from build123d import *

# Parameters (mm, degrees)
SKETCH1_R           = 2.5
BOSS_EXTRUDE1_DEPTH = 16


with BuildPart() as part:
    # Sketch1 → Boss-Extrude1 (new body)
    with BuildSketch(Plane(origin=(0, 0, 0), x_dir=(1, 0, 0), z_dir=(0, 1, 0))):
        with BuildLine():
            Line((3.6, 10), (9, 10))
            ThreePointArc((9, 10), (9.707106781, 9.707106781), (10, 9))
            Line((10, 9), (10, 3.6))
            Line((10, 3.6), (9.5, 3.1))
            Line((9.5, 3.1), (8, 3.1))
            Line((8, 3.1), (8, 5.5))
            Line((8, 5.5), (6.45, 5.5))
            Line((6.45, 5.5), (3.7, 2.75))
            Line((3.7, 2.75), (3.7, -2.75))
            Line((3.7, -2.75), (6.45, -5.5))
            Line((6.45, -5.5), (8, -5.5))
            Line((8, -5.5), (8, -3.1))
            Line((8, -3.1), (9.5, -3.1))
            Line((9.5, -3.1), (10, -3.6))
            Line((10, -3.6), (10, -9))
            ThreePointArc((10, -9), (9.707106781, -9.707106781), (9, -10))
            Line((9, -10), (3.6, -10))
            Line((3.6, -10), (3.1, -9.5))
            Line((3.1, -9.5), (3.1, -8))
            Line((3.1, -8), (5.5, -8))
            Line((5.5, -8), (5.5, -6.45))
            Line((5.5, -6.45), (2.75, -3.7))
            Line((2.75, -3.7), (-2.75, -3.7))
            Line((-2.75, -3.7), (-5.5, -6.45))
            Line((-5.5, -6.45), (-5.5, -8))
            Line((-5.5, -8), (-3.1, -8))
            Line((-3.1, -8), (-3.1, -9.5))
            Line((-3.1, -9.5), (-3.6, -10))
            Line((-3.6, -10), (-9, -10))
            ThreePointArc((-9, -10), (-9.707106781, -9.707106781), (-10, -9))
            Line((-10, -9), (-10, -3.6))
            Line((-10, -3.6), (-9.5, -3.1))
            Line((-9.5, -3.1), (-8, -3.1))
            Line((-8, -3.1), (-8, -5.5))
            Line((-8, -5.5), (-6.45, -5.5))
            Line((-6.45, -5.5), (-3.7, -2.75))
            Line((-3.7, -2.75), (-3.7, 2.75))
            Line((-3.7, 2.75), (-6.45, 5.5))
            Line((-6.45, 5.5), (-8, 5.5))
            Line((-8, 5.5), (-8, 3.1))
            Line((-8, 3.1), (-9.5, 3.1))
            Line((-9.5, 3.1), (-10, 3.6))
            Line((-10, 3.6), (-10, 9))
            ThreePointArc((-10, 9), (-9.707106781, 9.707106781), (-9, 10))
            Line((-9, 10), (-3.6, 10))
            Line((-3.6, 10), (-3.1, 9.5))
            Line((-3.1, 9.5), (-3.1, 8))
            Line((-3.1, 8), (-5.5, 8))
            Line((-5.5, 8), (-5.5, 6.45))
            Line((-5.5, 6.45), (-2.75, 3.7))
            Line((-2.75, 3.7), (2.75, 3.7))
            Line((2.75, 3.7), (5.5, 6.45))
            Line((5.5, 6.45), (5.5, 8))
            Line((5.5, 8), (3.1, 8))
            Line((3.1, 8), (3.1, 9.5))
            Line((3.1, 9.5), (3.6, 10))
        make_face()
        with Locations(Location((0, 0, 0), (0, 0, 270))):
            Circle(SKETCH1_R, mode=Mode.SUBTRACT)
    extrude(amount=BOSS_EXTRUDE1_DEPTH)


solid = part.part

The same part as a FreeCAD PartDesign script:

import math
import FreeCAD as App
import Part
import Sketcher
from FreeCAD import Vector
Q = App.Units.Quantity

doc = App.newDocument("Part")
body = doc.addObject("PartDesign::Body", "Body")

# Sketch on XZ plane
sketch1 = doc.addObject("Sketcher::SketchObject", "Sketch")
body.addObject(sketch1)
sketch1.AttachmentSupport = (doc.XZ_Plane, [""])
sketch1.MapMode = "FlatFace"
sketch1.addGeometry(Part.LineSegment(Vector(9, -10, 0), Vector(3.6, -10, 0)), False)
sketch1.addGeometry(Part.LineSegment(Vector(3.6, -10, 0), Vector(3.1, -9.5, 0)), False)
sketch1.addGeometry(Part.LineSegment(Vector(3.1, -9.5, 0), Vector(3.1, -8, 0)), False)
sketch1.addGeometry(Part.LineSegment(Vector(3.1, -8, 0), Vector(5.5, -8, 0)), False)
sketch1.addGeometry(Part.LineSegment(Vector(5.5, -8, 0), Vector(5.5, -6.5, 0)), False)
sketch1.addGeometry(Part.LineSegment(Vector(5.5, -6.5, 0), Vector(2.8, -3.7, 0)), False)
sketch1.addGeometry(Part.LineSegment(Vector(2.8, -3.7, 0), Vector(-2.8, -3.7, 0)), False)
sketch1.addGeometry(Part.LineSegment(Vector(-2.8, -3.7, 0), Vector(-5.5, -6.5, 0)), False)
sketch1.addGeometry(Part.LineSegment(Vector(-5.5, -6.5, 0), Vector(-5.5, -8, 0)), False)
sketch1.addGeometry(Part.LineSegment(Vector(-5.5, -8, 0), Vector(-3.1, -8, 0)), False)
sketch1.addGeometry(Part.LineSegment(Vector(-3.1, -8, 0), Vector(-3.1, -9.5, 0)), False)
sketch1.addGeometry(Part.LineSegment(Vector(-3.1, -9.5, 0), Vector(-3.6, -10, 0)), False)
sketch1.addGeometry(Part.LineSegment(Vector(-3.6, -10, 0), Vector(-9, -10, 0)), False)
sketch1.addGeometry(Part.ArcOfCircle(Part.Circle(Vector(-9, -9, 0), Vector(0, 0, 1), 1), math.radians(-180), math.radians(-90)), False)
sketch1.addGeometry(Part.LineSegment(Vector(-10, -9, 0), Vector(-10, -3.6, 0)), False)
sketch1.addGeometry(Part.LineSegment(Vector(-10, -3.6, 0), Vector(-9.5, -3.1, 0)), False)
sketch1.addGeometry(Part.LineSegment(Vector(-9.5, -3.1, 0), Vector(-8, -3.1, 0)), False)
sketch1.addGeometry(Part.LineSegment(Vector(-8, -3.1, 0), Vector(-8, -5.5, 0)), False)
sketch1.addGeometry(Part.LineSegment(Vector(-8, -5.5, 0), Vector(-6.5, -5.5, 0)), False)
sketch1.addGeometry(Part.LineSegment(Vector(-6.5, -5.5, 0), Vector(-3.7, -2.8, 0)), False)
sketch1.addGeometry(Part.LineSegment(Vector(-3.7, -2.8, 0), Vector(-3.7, 2.8, 0)), False)
sketch1.addGeometry(Part.LineSegment(Vector(-3.7, 2.8, 0), Vector(-6.5, 5.5, 0)), False)
sketch1.addGeometry(Part.LineSegment(Vector(-6.5, 5.5, 0), Vector(-8, 5.5, 0)), False)
sketch1.addGeometry(Part.LineSegment(Vector(-8, 5.5, 0), Vector(-8, 3.1, 0)), False)
sketch1.addGeometry(Part.LineSegment(Vector(-8, 3.1, 0), Vector(-9.5, 3.1, 0)), False)
sketch1.addGeometry(Part.LineSegment(Vector(-9.5, 3.1, 0), Vector(-10, 3.6, 0)), False)
sketch1.addGeometry(Part.LineSegment(Vector(-10, 3.6, 0), Vector(-10, 9, 0)), False)
sketch1.addGeometry(Part.ArcOfCircle(Part.Circle(Vector(-9, 9, 0), Vector(0, 0, 1), 1), math.radians(90), math.radians(180)), False)
sketch1.addGeometry(Part.LineSegment(Vector(-9, 10, 0), Vector(-3.6, 10, 0)), False)
sketch1.addGeometry(Part.LineSegment(Vector(-3.6, 10, 0), Vector(-3.1, 9.5, 0)), False)
sketch1.addGeometry(Part.LineSegment(Vector(-3.1, 9.5, 0), Vector(-3.1, 8, 0)), False)
sketch1.addGeometry(Part.LineSegment(Vector(-3.1, 8, 0), Vector(-5.5, 8, 0)), False)
sketch1.addGeometry(Part.LineSegment(Vector(-5.5, 8, 0), Vector(-5.5, 6.5, 0)), False)
sketch1.addGeometry(Part.LineSegment(Vector(-5.5, 6.5, 0), Vector(-2.8, 3.7, 0)), False)
sketch1.addGeometry(Part.LineSegment(Vector(-2.8, 3.7, 0), Vector(2.8, 3.7, 0)), False)
sketch1.addGeometry(Part.LineSegment(Vector(2.8, 3.7, 0), Vector(5.5, 6.5, 0)), False)
sketch1.addGeometry(Part.LineSegment(Vector(5.5, 6.5, 0), Vector(5.5, 8, 0)), False)
sketch1.addGeometry(Part.LineSegment(Vector(5.5, 8, 0), Vector(3.1, 8, 0)), False)
sketch1.addGeometry(Part.LineSegment(Vector(3.1, 8, 0), Vector(3.1, 9.5, 0)), False)
sketch1.addGeometry(Part.LineSegment(Vector(3.1, 9.5, 0), Vector(3.6, 10, 0)), False)
sketch1.addGeometry(Part.LineSegment(Vector(3.6, 10, 0), Vector(9, 10, 0)), False)
sketch1.addGeometry(Part.ArcOfCircle(Part.Circle(Vector(9, 9, 0), Vector(0, 0, 1), 1), math.radians(0), math.radians(90)), False)
sketch1.addGeometry(Part.LineSegment(Vector(10, 9, 0), Vector(10, 3.6, 0)), False)
sketch1.addGeometry(Part.LineSegment(Vector(10, 3.6, 0), Vector(9.5, 3.1, 0)), False)
sketch1.addGeometry(Part.LineSegment(Vector(9.5, 3.1, 0), Vector(8, 3.1, 0)), False)
sketch1.addGeometry(Part.LineSegment(Vector(8, 3.1, 0), Vector(8, 5.5, 0)), False)
sketch1.addGeometry(Part.LineSegment(Vector(8, 5.5, 0), Vector(6.5, 5.5, 0)), False)
sketch1.addGeometry(Part.LineSegment(Vector(6.5, 5.5, 0), Vector(3.7, 2.8, 0)), False)
sketch1.addGeometry(Part.LineSegment(Vector(3.7, 2.8, 0), Vector(3.7, -2.8, 0)), False)
sketch1.addGeometry(Part.LineSegment(Vector(3.7, -2.8, 0), Vector(6.5, -5.5, 0)), False)
sketch1.addGeometry(Part.LineSegment(Vector(6.5, -5.5, 0), Vector(8, -5.5, 0)), False)
sketch1.addGeometry(Part.LineSegment(Vector(8, -5.5, 0), Vector(8, -3.1, 0)), False)
sketch1.addGeometry(Part.LineSegment(Vector(8, -3.1, 0), Vector(9.5, -3.1, 0)), False)
sketch1.addGeometry(Part.LineSegment(Vector(9.5, -3.1, 0), Vector(10, -3.6, 0)), False)
sketch1.addGeometry(Part.LineSegment(Vector(10, -3.6, 0), Vector(10, -9, 0)), False)
sketch1.addGeometry(Part.ArcOfCircle(Part.Circle(Vector(9, -9, 0), Vector(0, 0, 1), 1), math.radians(-90), math.radians(0)), False)
sketch1.addGeometry(Part.Circle(Vector(0, 0, 0), Vector(0, 0, 1), 2.5), False)
sketch1.addConstraint(Sketcher.Constraint("Coincident", 0, 2, 1, 1))
sketch1.addConstraint(Sketcher.Constraint("Coincident", 1, 2, 2, 1))
sketch1.addConstraint(Sketcher.Constraint("Coincident", 2, 2, 3, 1))
sketch1.addConstraint(Sketcher.Constraint("Coincident", 3, 2, 4, 1))
sketch1.addConstraint(Sketcher.Constraint("Coincident", 4, 2, 5, 1))
sketch1.addConstraint(Sketcher.Constraint("Coincident", 5, 2, 6, 1))
sketch1.addConstraint(Sketcher.Constraint("Coincident", 6, 2, 7, 1))
sketch1.addConstraint(Sketcher.Constraint("Coincident", 7, 2, 8, 1))
sketch1.addConstraint(Sketcher.Constraint("Coincident", 8, 2, 9, 1))
sketch1.addConstraint(Sketcher.Constraint("Coincident", 9, 2, 10, 1))
sketch1.addConstraint(Sketcher.Constraint("Coincident", 10, 2, 11, 1))
sketch1.addConstraint(Sketcher.Constraint("Coincident", 11, 2, 12, 1))
sketch1.addConstraint(Sketcher.Constraint("Tangent", 12, 2, 13, 2))
sketch1.addConstraint(Sketcher.Constraint("Tangent", 13, 1, 14, 1))
sketch1.addConstraint(Sketcher.Constraint("Coincident", 14, 2, 15, 1))
sketch1.addConstraint(Sketcher.Constraint("Coincident", 15, 2, 16, 1))
sketch1.addConstraint(Sketcher.Constraint("Coincident", 16, 2, 17, 1))
sketch1.addConstraint(Sketcher.Constraint("Coincident", 17, 2, 18, 1))
sketch1.addConstraint(Sketcher.Constraint("Coincident", 18, 2, 19, 1))
sketch1.addConstraint(Sketcher.Constraint("Coincident", 19, 2, 20, 1))
sketch1.addConstraint(Sketcher.Constraint("Coincident", 20, 2, 21, 1))
sketch1.addConstraint(Sketcher.Constraint("Coincident", 21, 2, 22, 1))
sketch1.addConstraint(Sketcher.Constraint("Coincident", 22, 2, 23, 1))
sketch1.addConstraint(Sketcher.Constraint("Coincident", 23, 2, 24, 1))
sketch1.addConstraint(Sketcher.Constraint("Coincident", 24, 2, 25, 1))
sketch1.addConstraint(Sketcher.Constraint("Coincident", 25, 2, 26, 1))
sketch1.addConstraint(Sketcher.Constraint("Tangent", 26, 2, 27, 2))
sketch1.addConstraint(Sketcher.Constraint("Tangent", 27, 1, 28, 1))
sketch1.addConstraint(Sketcher.Constraint("Coincident", 28, 2, 29, 1))
sketch1.addConstraint(Sketcher.Constraint("Coincident", 29, 2, 30, 1))
sketch1.addConstraint(Sketcher.Constraint("Coincident", 30, 2, 31, 1))
sketch1.addConstraint(Sketcher.Constraint("Coincident", 31, 2, 32, 1))
sketch1.addConstraint(Sketcher.Constraint("Coincident", 32, 2, 33, 1))
sketch1.addConstraint(Sketcher.Constraint("Coincident", 33, 2, 34, 1))
sketch1.addConstraint(Sketcher.Constraint("Coincident", 34, 2, 35, 1))
sketch1.addConstraint(Sketcher.Constraint("Coincident", 35, 2, 36, 1))
sketch1.addConstraint(Sketcher.Constraint("Coincident", 36, 2, 37, 1))
sketch1.addConstraint(Sketcher.Constraint("Coincident", 37, 2, 38, 1))
sketch1.addConstraint(Sketcher.Constraint("Coincident", 38, 2, 39, 1))
sketch1.addConstraint(Sketcher.Constraint("Coincident", 39, 2, 40, 1))
sketch1.addConstraint(Sketcher.Constraint("Tangent", 40, 2, 41, 2))
sketch1.addConstraint(Sketcher.Constraint("Tangent", 41, 1, 42, 1))
sketch1.addConstraint(Sketcher.Constraint("Coincident", 42, 2, 43, 1))
sketch1.addConstraint(Sketcher.Constraint("Coincident", 43, 2, 44, 1))
sketch1.addConstraint(Sketcher.Constraint("Coincident", 44, 2, 45, 1))
sketch1.addConstraint(Sketcher.Constraint("Coincident", 45, 2, 46, 1))
sketch1.addConstraint(Sketcher.Constraint("Coincident", 46, 2, 47, 1))
sketch1.addConstraint(Sketcher.Constraint("Coincident", 47, 2, 48, 1))
sketch1.addConstraint(Sketcher.Constraint("Coincident", 48, 2, 49, 1))
sketch1.addConstraint(Sketcher.Constraint("Coincident", 49, 2, 50, 1))
sketch1.addConstraint(Sketcher.Constraint("Coincident", 50, 2, 51, 1))
sketch1.addConstraint(Sketcher.Constraint("Coincident", 51, 2, 52, 1))
sketch1.addConstraint(Sketcher.Constraint("Coincident", 52, 2, 53, 1))
sketch1.addConstraint(Sketcher.Constraint("Coincident", 53, 2, 54, 1))
sketch1.addConstraint(Sketcher.Constraint("Tangent", 54, 2, 55, 2))
sketch1.addConstraint(Sketcher.Constraint("Tangent", 55, 1, 0, 1))
sketch1.addConstraint(Sketcher.Constraint("Horizontal", 0))
sketch1.addConstraint(Sketcher.Constraint("Vertical", 2))
sketch1.addConstraint(Sketcher.Constraint("Horizontal", 3))
sketch1.addConstraint(Sketcher.Constraint("Vertical", 4))
sketch1.addConstraint(Sketcher.Constraint("Horizontal", 6))
sketch1.addConstraint(Sketcher.Constraint("Vertical", 8))
sketch1.addConstraint(Sketcher.Constraint("Horizontal", 9))
sketch1.addConstraint(Sketcher.Constraint("Vertical", 10))
sketch1.addConstraint(Sketcher.Constraint("Horizontal", 12))
sketch1.addConstraint(Sketcher.Constraint("Vertical", 14))
sketch1.addConstraint(Sketcher.Constraint("Horizontal", 16))
sketch1.addConstraint(Sketcher.Constraint("Vertical", 17))
sketch1.addConstraint(Sketcher.Constraint("Horizontal", 18))
sketch1.addConstraint(Sketcher.Constraint("Vertical", 20))
sketch1.addConstraint(Sketcher.Constraint("Horizontal", 22))
sketch1.addConstraint(Sketcher.Constraint("Vertical", 23))
sketch1.addConstraint(Sketcher.Constraint("Horizontal", 24))
sketch1.addConstraint(Sketcher.Constraint("Vertical", 26))
sketch1.addConstraint(Sketcher.Constraint("Horizontal", 28))
sketch1.addConstraint(Sketcher.Constraint("Vertical", 30))
sketch1.addConstraint(Sketcher.Constraint("Horizontal", 31))
sketch1.addConstraint(Sketcher.Constraint("Vertical", 32))
sketch1.addConstraint(Sketcher.Constraint("Horizontal", 34))
sketch1.addConstraint(Sketcher.Constraint("Vertical", 36))
sketch1.addConstraint(Sketcher.Constraint("Horizontal", 37))
sketch1.addConstraint(Sketcher.Constraint("Vertical", 38))
sketch1.addConstraint(Sketcher.Constraint("Horizontal", 40))
sketch1.addConstraint(Sketcher.Constraint("Vertical", 42))
sketch1.addConstraint(Sketcher.Constraint("Horizontal", 44))
sketch1.addConstraint(Sketcher.Constraint("Vertical", 45))
sketch1.addConstraint(Sketcher.Constraint("Horizontal", 46))
sketch1.addConstraint(Sketcher.Constraint("Vertical", 48))
sketch1.addConstraint(Sketcher.Constraint("Horizontal", 50))
sketch1.addConstraint(Sketcher.Constraint("Vertical", 51))
sketch1.addConstraint(Sketcher.Constraint("Horizontal", 52))
sketch1.addConstraint(Sketcher.Constraint("Vertical", 54))
sketch1.addConstraint(Sketcher.Constraint("Coincident", 56, 3, -1, 1))
sketch1.addConstraint(Sketcher.Constraint("Equal", 13, 27))
sketch1.addConstraint(Sketcher.Constraint("Equal", 27, 41))
sketch1.addConstraint(Sketcher.Constraint("Equal", 41, 55))
sketch1.addConstraint(Sketcher.Constraint("Symmetric", 13, 3, 41, 3, -1, 1))
sketch1.addConstraint(Sketcher.Constraint("Symmetric", 27, 3, 55, 3, -1, 1))
sketch1.addConstraint(Sketcher.Constraint("Symmetric", 1, 2, 29, 2, -1, 1))
sketch1.addConstraint(Sketcher.Constraint("Symmetric", 3, 2, 31, 2, -1, 1))
sketch1.addConstraint(Sketcher.Constraint("Symmetric", 5, 2, 33, 2, -1, 1))
sketch1.addConstraint(Sketcher.Constraint("Symmetric", 7, 2, 35, 2, -1, 1))
sketch1.addConstraint(Sketcher.Constraint("Symmetric", 9, 2, 37, 2, -1, 1))
sketch1.addConstraint(Sketcher.Constraint("Symmetric", 15, 2, 43, 2, -1, 1))
sketch1.addConstraint(Sketcher.Constraint("Symmetric", 17, 2, 45, 2, -1, 1))
sketch1.addConstraint(Sketcher.Constraint("Symmetric", 19, 2, 47, 2, -1, 1))
sketch1.addConstraint(Sketcher.Constraint("Symmetric", 21, 2, 49, 2, -1, 1))
sketch1.addConstraint(Sketcher.Constraint("Symmetric", 23, 2, 51, 2, -1, 1))
sketch1.addConstraint(Sketcher.Constraint("Symmetric", 27, 3, 41, 3, -2))
sketch1.addConstraint(Sketcher.Constraint("Symmetric", 4, 2, 7, 2, -2))
sketch1.addConstraint(Sketcher.Constraint("Symmetric", 2, 2, 9, 2, -2))
sketch1.addConstraint(Sketcher.Constraint("Symmetric", 24, 2, 43, 2, -2))
sketch1.addConstraint(Sketcher.Constraint("Symmetric", 22, 2, 45, 2, -2))
sketch1.addConstraint(Sketcher.Constraint("Parallel", 1, 5))
sketch1.addConstraint(Sketcher.Constraint("Perpendicular", 5, 7))
sketch1.addConstraint(Sketcher.Constraint("Parallel", 7, 11))
sketch1.addConstraint(Sketcher.Constraint("Parallel", 11, 15))
sketch1.addConstraint(Sketcher.Constraint("Parallel", 15, 19))
sketch1.addConstraint(Sketcher.Constraint("Perpendicular", 19, 21))
sketch1.addConstraint(Sketcher.Constraint("Parallel", 21, 25))
sketch1.addConstraint(Sketcher.Constraint("Parallel", 25, 29))
sketch1.addConstraint(Sketcher.Constraint("Parallel", 29, 33))
sketch1.addConstraint(Sketcher.Constraint("Perpendicular", 33, 35))
sketch1.addConstraint(Sketcher.Constraint("Parallel", 35, 39))
sketch1.addConstraint(Sketcher.Constraint("Parallel", 39, 43))
sketch1.addConstraint(Sketcher.Constraint("Parallel", 43, 47))
sketch1.addConstraint(Sketcher.Constraint("Perpendicular", 47, 49))
sketch1.addConstraint(Sketcher.Constraint("Parallel", 49, 53))
sketch1.addConstraint(Sketcher.Constraint("Horizontal", 1, 2, 10, 2))
sketch1.addConstraint(Sketcher.Constraint("Horizontal", 29, 2, 38, 2))
sketch1.addConstraint(Sketcher.Constraint("Horizontal", 25, 2, 42, 2))
sketch1.addConstraint(Sketcher.Constraint("Horizontal", 20, 2, 47, 2))
sketch1.addConstraint(Sketcher.Constraint("Horizontal", 14, 2, 53, 2))
sketch1.addConstraint(Sketcher.Constraint("Equal", 52, 2))
sketch1.addConstraint(Sketcher.Constraint("Equal", 50, 4))
sketch1.addConstraint(Sketcher.Constraint("Equal", 40, 14))
sketch1.addConstraint(Sketcher.Constraint("Equal", 37, 17))
sketch1.addConstraint(Sketcher.Constraint("Equal", 34, 20))
sketch1.addConstraint(Sketcher.Constraint("Equal", 11, 15))
sketch1.addConstraint(Sketcher.Constraint("Equal", 7, 19))
sketch1.addConstraint(Sketcher.Constraint("Diameter", 56, Q("5 mm")))
sketch1.addConstraint(Sketcher.Constraint("Radius", 13, Q("1 mm")))
sketch1.addConstraint(Sketcher.Constraint("DistanceX", 0, 2, 0, 1, Q("5.4 mm")))
sketch1.addConstraint(Sketcher.Constraint("DistanceX", 3, 1, 3, 2, Q("2.4 mm")))
sketch1.addConstraint(Sketcher.Constraint("DistanceX", 6, 2, 6, 1, Q("5.5 mm")))
sketch1.addConstraint(Sketcher.Constraint("DistanceX", 16, 1, 16, 2, Q("1.5 mm")))
sketch1.addConstraint(Sketcher.Constraint("DistanceX", 13, 3, -1, 1, Q("9 mm")))
sketch1.addConstraint(Sketcher.Constraint("DistanceY", 2, 2, -1, 1, Q("8 mm")))
sketch1.addConstraint(Sketcher.Constraint("DistanceX", 18, 1, 18, 2, Q("1.55 mm")))
pad1 = doc.addObject("PartDesign::Pad", "Pad")
body.addObject(pad1)
pad1.Profile = sketch1
pad1.Length = 16
pad1.Reversed = True

doc.recompute()
